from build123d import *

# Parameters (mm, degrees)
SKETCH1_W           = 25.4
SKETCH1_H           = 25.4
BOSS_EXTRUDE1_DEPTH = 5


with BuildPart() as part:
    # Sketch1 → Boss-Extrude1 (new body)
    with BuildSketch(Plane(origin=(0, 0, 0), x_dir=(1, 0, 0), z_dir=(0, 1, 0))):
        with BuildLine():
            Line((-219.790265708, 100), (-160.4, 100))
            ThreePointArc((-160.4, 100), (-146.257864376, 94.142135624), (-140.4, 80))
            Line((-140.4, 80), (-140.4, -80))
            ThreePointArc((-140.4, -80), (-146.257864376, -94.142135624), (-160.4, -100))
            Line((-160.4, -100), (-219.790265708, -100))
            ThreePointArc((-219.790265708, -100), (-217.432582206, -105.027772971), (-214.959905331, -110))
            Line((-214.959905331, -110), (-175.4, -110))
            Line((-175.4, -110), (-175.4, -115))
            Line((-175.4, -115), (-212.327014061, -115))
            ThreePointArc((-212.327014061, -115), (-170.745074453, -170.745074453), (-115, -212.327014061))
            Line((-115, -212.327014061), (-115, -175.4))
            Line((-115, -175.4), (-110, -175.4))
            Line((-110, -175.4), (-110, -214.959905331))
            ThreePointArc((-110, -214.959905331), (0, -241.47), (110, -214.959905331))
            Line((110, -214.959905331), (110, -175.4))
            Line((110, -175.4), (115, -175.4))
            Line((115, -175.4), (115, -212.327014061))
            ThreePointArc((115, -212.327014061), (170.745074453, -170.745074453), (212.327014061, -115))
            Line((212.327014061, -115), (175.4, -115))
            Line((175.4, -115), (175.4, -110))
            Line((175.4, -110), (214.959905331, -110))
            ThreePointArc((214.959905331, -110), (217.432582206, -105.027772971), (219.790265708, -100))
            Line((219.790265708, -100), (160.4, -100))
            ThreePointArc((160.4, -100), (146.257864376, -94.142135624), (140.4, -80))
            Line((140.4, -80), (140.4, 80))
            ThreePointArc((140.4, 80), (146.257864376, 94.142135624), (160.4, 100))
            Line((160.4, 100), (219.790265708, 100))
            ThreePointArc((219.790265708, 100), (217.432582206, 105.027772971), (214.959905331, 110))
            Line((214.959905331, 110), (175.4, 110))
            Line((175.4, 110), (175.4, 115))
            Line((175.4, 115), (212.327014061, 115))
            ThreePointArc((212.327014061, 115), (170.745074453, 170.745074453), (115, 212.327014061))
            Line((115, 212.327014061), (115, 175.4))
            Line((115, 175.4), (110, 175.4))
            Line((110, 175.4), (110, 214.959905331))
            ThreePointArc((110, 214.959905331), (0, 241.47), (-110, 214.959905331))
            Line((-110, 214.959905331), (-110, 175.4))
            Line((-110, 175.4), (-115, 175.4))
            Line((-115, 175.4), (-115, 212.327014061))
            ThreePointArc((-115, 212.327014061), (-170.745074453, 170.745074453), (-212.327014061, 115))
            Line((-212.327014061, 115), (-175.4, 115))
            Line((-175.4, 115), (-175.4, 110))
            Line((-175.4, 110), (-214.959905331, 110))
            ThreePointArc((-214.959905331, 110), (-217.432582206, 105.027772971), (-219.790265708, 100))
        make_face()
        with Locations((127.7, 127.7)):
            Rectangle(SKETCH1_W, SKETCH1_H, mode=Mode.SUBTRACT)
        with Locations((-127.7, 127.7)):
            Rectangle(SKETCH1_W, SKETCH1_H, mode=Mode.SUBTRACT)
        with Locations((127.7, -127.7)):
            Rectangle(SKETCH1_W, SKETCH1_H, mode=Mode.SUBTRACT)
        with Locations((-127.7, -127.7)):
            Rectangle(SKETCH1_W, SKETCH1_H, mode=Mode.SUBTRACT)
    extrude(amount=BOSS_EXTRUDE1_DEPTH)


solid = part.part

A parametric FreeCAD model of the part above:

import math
import FreeCAD as App
import Part
import Sketcher

V = App.Vector


def add_polygon(sketch, points):
    """Adds a closed chain of lines whose ends are joined by coincident constraints."""
    first, n = sketch.GeometryCount, len(points)
    for a, b in zip(points, points[1:] + points[:1]):
        sketch.addGeometry(Part.LineSegment(App.Vector(*a, 0), App.Vector(*b, 0)), False)
    for i in range(n):
        sketch.addConstraint(Sketcher.Constraint("Coincident", first + i, 2, first + (i + 1) % n, 1))

doc = App.newDocument("Part")
body = doc.addObject("PartDesign::Body", "Body")

# Sketch on XZ plane
sketch1 = doc.addObject("Sketcher::SketchObject", "Sketch")
body.addObject(sketch1)
sketch1.AttachmentSupport = (doc.XZ_Plane, [""])
sketch1.MapMode = "FlatFace"
sketch1.addGeometry(Part.LineSegment(V(-220, -100, 0), V(-160, -100, 0)), False)  # 0
sketch1.addGeometry(Part.ArcOfCircle(Part.Circle(V(-160, -80, 0), V(0, 0, 1), 20), math.radians(-90), math.radians(0)), False)  # 1
sketch1.addGeometry(Part.LineSegment(V(-140, -80, 0), V(-140, 80, 0)), False)  # 2
sketch1.addGeometry(Part.ArcOfCircle(Part.Circle(V(-160, 80, 0), V(0, 0, 1), 20), math.radians(0), math.radians(90)), False)  # 3
sketch1.addGeometry(Part.LineSegment(V(-160, 100, 0), V(-220, 100, 0)), False)  # 4
sketch1.addGeometry(Part.ArcOfCircle(Part.Circle(V(0, 0, 0), V(0, 0, 1), 241), math.radians(152.9), math.radians(155.54)), False)  # 5
sketch1.addGeometry(Part.LineSegment(V(-215, 110, 0), V(-175, 110, 0)), False)  # 6
sketch1.addGeometry(Part.LineSegment(V(-175, 110, 0), V(-175, 115, 0)), False)  # 7
sketch1.addGeometry(Part.LineSegment(V(-175, 115, 0), V(-212, 115, 0)), False)  # 8
sketch1.addGeometry(Part.ArcOfCircle(Part.Circle(V(0, 0, 0), V(0, 0, 1), 241), math.radians(118), math.radians(152)), False)  # 9
sketch1.addGeometry(Part.LineSegment(V(-115, 212, 0), V(-115, 175, 0)), False)  # 10
sketch1.addGeometry(Part.LineSegment(V(-115, 175, 0), V(-110, 175, 0)), False)  # 11
sketch1.addGeometry(Part.LineSegment(V(-110, 175, 0), V(-110, 215, 0)), False)  # 12
sketch1.addGeometry(Part.ArcOfCircle(Part.Circle(V(0, 0, 0), V(0, 0, 1), 241), math.radians(63), math.radians(117)), False)  # 13
sketch1.addGeometry(Part.LineSegment(V(110, 215, 0), V(110, 175, 0)), False)  # 14
sketch1.addGeometry(Part.LineSegment(V(110, 175, 0), V(115, 175, 0)), False)  # 15
sketch1.addGeometry(Part.LineSegment(V(115, 175, 0), V(115, 212, 0)), False)  # 16
sketch1.addGeometry(Part.ArcOfCircle(Part.Circle(V(0, 0, 0), V(0, 0, 1), 241), math.radians(28), math.radians(62)), False)  # 17
sketch1.addGeometry(Part.LineSegment(V(212, 115, 0), V(175, 115, 0)), False)  # 18
sketch1.addGeometry(Part.LineSegment(V(175, 115, 0), V(175, 110, 0)), False)  # 19
sketch1.addGeometry(Part.LineSegment(V(175, 110, 0), V(215, 110, 0)), False)  # 20
sketch1.addGeometry(Part.ArcOfCircle(Part.Circle(V(0, 0, 0), V(0, 0, 1), 241), math.radians(24.46), math.radians(27.1)), False)  # 21
sketch1.addGeometry(Part.LineSegment(V(220, 100, 0), V(160, 100, 0)), False)  # 22
sketch1.addGeometry(Part.ArcOfCircle(Part.Circle(V(160, 80, 0), V(0, 0, 1), 20), math.radians(90), math.radians(180)), False)  # 23
sketch1.addGeometry(Part.LineSegment(V(140, 80, 0), V(140, -80, 0)), False)  # 24
sketch1.addGeometry(Part.ArcOfCircle(Part.Circle(V(160, -80, 0), V(0, 0, 1), 20), math.radians(180), math.radians(270)), False)  # 25
sketch1.addGeometry(Part.LineSegment(V(160, -100, 0), V(220, -100, 0)), False)  # 26
sketch1.addGeometry(Part.ArcOfCircle(Part.Circle(V(0, 0, 0), V(0, 0, 1), 241), math.radians(-27.1), math.radians(-24.46)), False)  # 27
sketch1.addGeometry(Part.LineSegment(V(215, -110, 0), V(175, -110, 0)), False)  # 28
sketch1.addGeometry(Part.LineSegment(V(175, -110, 0), V(175, -115, 0)), False)  # 29
sketch1.addGeometry(Part.LineSegment(V(175, -115, 0), V(212, -115, 0)), False)  # 30
sketch1.addGeometry(Part.ArcOfCircle(Part.Circle(V(0, 0, 0), V(0, 0, 1), 241), math.radians(-62), math.radians(-28)), False)  # 31
sketch1.addGeometry(Part.LineSegment(V(115, -212, 0), V(115, -175, 0)), False)  # 32
sketch1.addGeometry(Part.LineSegment(V(115, -175, 0), V(110, -175, 0)), False)  # 33
sketch1.addGeometry(Part.LineSegment(V(110, -175, 0), V(110, -215, 0)), False)  # 34
sketch1.addGeometry(Part.ArcOfCircle(Part.Circle(V(0, 0, 0), V(0, 0, 1), 241), math.radians(-117), math.radians(-63)), False)  # 35
sketch1.addGeometry(Part.LineSegment(V(-110, -215, 0), V(-110, -175, 0)), False)  # 36
sketch1.addGeometry(Part.LineSegment(V(-110, -175, 0), V(-115, -175, 0)), False)  # 37
sketch1.addGeometry(Part.LineSegment(V(-115, -175, 0), V(-115, -212, 0)), False)  # 38
sketch1.addGeometry(Part.ArcOfCircle(Part.Circle(V(0, 0, 0), V(0, 0, 1), 241), math.radians(-152), math.radians(-118)), False)  # 39
sketch1.addGeometry(Part.LineSegment(V(-212, -115, 0), V(-175, -115, 0)), False)  # 40
sketch1.addGeometry(Part.LineSegment(V(-175, -115, 0), V(-175, -110, 0)), False)  # 41
sketch1.addGeometry(Part.LineSegment(V(-175, -110, 0), V(-215, -110, 0)), False)  # 42
sketch1.addGeometry(Part.ArcOfCircle(Part.Circle(V(0, 0, 0), V(0, 0, 1), 241), math.radians(-155.54), math.radians(-152.9)), False)  # 43
add_polygon(sketch1, [(-115, 140), (-140, 140), (-140, 115), (-115, 115)])  # lines 44-47
add_polygon(sketch1, [(140, 140), (115, 140), (115, 115), (140, 115)])  # lines 48-51
add_polygon(sketch1, [(-115, -115), (-140, -115), (-140, -140), (-115, -140)])  # lines 52-55
add_polygon(sketch1, [(140, -115), (115, -115), (115, -140), (140, -140)])  # lines 56-59
sketch1.addConstraint(Sketcher.Constraint("Tangent", 0, 2, 1, 1))
sketch1.addConstraint(Sketcher.Constraint("Tangent", 1, 2, 2, 1))
sketch1.addConstraint(Sketcher.Constraint("Tangent", 2, 2, 3, 1))
sketch1.addConstraint(Sketcher.Constraint("Tangent", 3, 2, 4, 1))
sketch1.addConstraint(Sketcher.Constraint("Coincident", 4, 2, 5, 2))
sketch1.addConstraint(Sketcher.Constraint("Coincident", 5, 1, 6, 1))
sketch1.addConstraint(Sketcher.Constraint("Coincident", 6, 2, 7, 1))
sketch1.addConstraint(Sketcher.Constraint("Coincident", 7, 2, 8, 1))
sketch1.addConstraint(Sketcher.Constraint("Coincident", 8, 2, 9, 2))
sketch1.addConstraint(Sketcher.Constraint("Coincident", 9, 1, 10, 1))
sketch1.addConstraint(Sketcher.Constraint("Coincident", 10, 2, 11, 1))
sketch1.addConstraint(Sketcher.Constraint("Coincident", 11, 2, 12, 1))
sketch1.addConstraint(Sketcher.Constraint("Coincident", 12, 2, 13, 2))
sketch1.addConstraint(Sketcher.Constraint("Coincident", 13, 1, 14, 1))
sketch1.addConstraint(Sketcher.Constraint("Coincident", 14, 2, 15, 1))
sketch1.addConstraint(Sketcher.Constraint("Coincident", 15, 2, 16, 1))
sketch1.addConstraint(Sketcher.Constraint("Coincident", 16, 2, 17, 2))
sketch1.addConstraint(Sketcher.Constraint("Coincident", 17, 1, 18, 1))
sketch1.addConstraint(Sketcher.Constraint("Coincident", 18, 2, 19, 1))
sketch1.addConstraint(Sketcher.Constraint("Coincident", 19, 2, 20, 1))
sketch1.addConstraint(Sketcher.Constraint("Coincident", 20, 2, 21, 2))
sketch1.addConstraint(Sketcher.Constraint("Coincident", 21, 1, 22, 1))
sketch1.addConstraint(Sketcher.Constraint("Tangent", 22, 2, 23, 1))
sketch1.addConstraint(Sketcher.Constraint("Tangent", 23, 2, 24, 1))
sketch1.addConstraint(Sketcher.Constraint("Tangent", 24, 2, 25, 1))
sketch1.addConstraint(Sketcher.Constraint("Tangent", 25, 2, 26, 1))
sketch1.addConstraint(Sketcher.Constraint("Coincident", 26, 2, 27, 2))
sketch1.addConstraint(Sketcher.Constraint("Coincident", 27, 1, 28, 1))
sketch1.addConstraint(Sketcher.Constraint("Coincident", 28, 2, 29, 1))
sketch1.addConstraint(Sketcher.Constraint("Coincident", 29, 2, 30, 1))
sketch1.addConstraint(Sketcher.Constraint("Coincident", 30, 2, 31, 2))
sketch1.addConstraint(Sketcher.Constraint("Coincident", 31, 1, 32, 1))
sketch1.addConstraint(Sketcher.Constraint("Coincident", 32, 2, 33, 1))
sketch1.addConstraint(Sketcher.Constraint("Coincident", 33, 2, 34, 1))
sketch1.addConstraint(Sketcher.Constraint("Coincident", 34, 2, 35, 2))
sketch1.addConstraint(Sketcher.Constraint("Coincident", 35, 1, 36, 1))
sketch1.addConstraint(Sketcher.Constraint("Coincident", 36, 2, 37, 1))
sketch1.addConstraint(Sketcher.Constraint("Coincident", 37, 2, 38, 1))
sketch1.addConstraint(Sketcher.Constraint("Coincident", 38, 2, 39, 2))
sketch1.addConstraint(Sketcher.Constraint("Coincident", 39, 1, 40, 1))
sketch1.addConstraint(Sketcher.Constraint("Coincident", 40, 2, 41, 1))
sketch1.addConstraint(Sketcher.Constraint("Coincident", 41, 2, 42, 1))
sketch1.addConstraint(Sketcher.Constraint("Coincident", 42, 2, 43, 2))
sketch1.addConstraint(Sketcher.Constraint("Coincident", 43, 1, 0, 1))
sketch1.addConstraint(Sketcher.Constraint("Horizontal", 0))
sketch1.addConstraint(Sketcher.Constraint("Vertical", 2))
sketch1.addConstraint(Sketcher.Constraint("Horizontal", 4))
sketch1.addConstraint(Sketcher.Constraint("Horizontal", 6))
sketch1.addConstraint(Sketcher.Constraint("Vertical", 7))
sketch1.addConstraint(Sketcher.Constraint("Horizontal", 8))
sketch1.addConstraint(Sketcher.Constraint("Vertical", 10))
sketch1.addConstraint(Sketcher.Constraint("Horizontal", 11))
sketch1.addConstraint(Sketcher.Constraint("Vertical", 12))
sketch1.addConstraint(Sketcher.Constraint("Vertical", 14))
sketch1.addConstraint(Sketcher.Constraint("Horizontal", 15))
sketch1.addConstraint(Sketcher.Constraint("Vertical", 16))
sketch1.addConstraint(Sketcher.Constraint("Horizontal", 18))
sketch1.addConstraint(Sketcher.Constraint("Vertical", 19))
sketch1.addConstraint(Sketcher.Constraint("Horizontal", 20))
sketch1.addConstraint(Sketcher.Constraint("Horizontal", 22))
sketch1.addConstraint(Sketcher.Constraint("Vertical", 24))
sketch1.addConstraint(Sketcher.Constraint("Horizontal", 26))
sketch1.addConstraint(Sketcher.Constraint("Horizontal", 28))
sketch1.addConstraint(Sketcher.Constraint("Vertical", 29))
sketch1.addConstraint(Sketcher.Constraint("Horizontal", 30))
sketch1.addConstraint(Sketcher.Constraint("Vertical", 32))
sketch1.addConstraint(Sketcher.Constraint("Horizontal", 33))
sketch1.addConstraint(Sketcher.Constraint("Vertical", 34))
sketch1.addConstraint(Sketcher.Constraint("Vertical", 36))
sketch1.addConstraint(Sketcher.Constraint("Horizontal", 37))
sketch1.addConstraint(Sketcher.Constraint("Vertical", 38))
sketch1.addConstraint(Sketcher.Constraint("Horizontal", 40))
sketch1.addConstraint(Sketcher.Constraint("Vertical", 41))
sketch1.addConstraint(Sketcher.Constraint("Horizontal", 42))
sketch1.addConstraint(Sketcher.Constraint("Horizontal", 44))
sketch1.addConstraint(Sketcher.Constraint("Vertical", 45))
sketch1.addConstraint(Sketcher.Constraint("Horizontal", 46))
sketch1.addConstraint(Sketcher.Constraint("Vertical", 47))
sketch1.addConstraint(Sketcher.Constraint("Horizontal", 48))
sketch1.addConstraint(Sketcher.Constraint("Vertical", 49))
sketch1.addConstraint(Sketcher.Constraint("Horizontal", 50))
sketch1.addConstraint(Sketcher.Constraint("Vertical", 51))
sketch1.addConstraint(Sketcher.Constraint("Horizontal", 52))
sketch1.addConstraint(Sketcher.Constraint("Vertical", 53))
sketch1.addConstraint(Sketcher.Constraint("Horizontal", 54))
sketch1.addConstraint(Sketcher.Constraint("Vertical", 55))
sketch1.addConstraint(Sketcher.Constraint("Horizontal", 56))
sketch1.addConstraint(Sketcher.Constraint("Vertical", 57))
sketch1.addConstraint(Sketcher.Constraint("Horizontal", 58))
sketch1.addConstraint(Sketcher.Constraint("Vertical", 59))
sketch1.addConstraint(Sketcher.Constraint("Coincident", 5, 3, -1, 1))
sketch1.addConstraint(Sketcher.Constraint("Coincident", 9, 3, -1, 1))
sketch1.addConstraint(Sketcher.Constraint("Coincident", 13, 3, -1, 1))
sketch1.addConstraint(Sketcher.Constraint("Coincident", 17, 3, -1, 1))
sketch1.addConstraint(Sketcher.Constraint("Coincident", 21, 3, -1, 1))
sketch1.addConstraint(Sketcher.Constraint("Coincident", 27, 3, -1, 1))
sketch1.addConstraint(Sketcher.Constraint("Coincident", 31, 3, -1, 1))
sketch1.addConstraint(Sketcher.Constraint("Coincident", 35, 3, -1, 1))
sketch1.addConstraint(Sketcher.Constraint("Coincident", 39, 3, -1, 1))
sketch1.addConstraint(Sketcher.Constraint("Coincident", 43, 3, -1, 1))
sketch1.addConstraint(Sketcher.Constraint("Equal", 1, 3))
sketch1.addConstraint(Sketcher.Constraint("Equal", 5, 9))
sketch1.addConstraint(Sketcher.Constraint("Equal", 9, 13))
sketch1.addConstraint(Sketcher.Constraint("Equal", 13, 17))
sketch1.addConstraint(Sketcher.Constraint("Equal", 17, 21))
sketch1.addConstraint(Sketcher.Constraint("Equal", 3, 23))
sketch1.addConstraint(Sketcher.Constraint("Equal", 23, 25))
sketch1.addConstraint(Sketcher.Constraint("Equal", 21, 27))
sketch1.addConstraint(Sketcher.Constraint("Equal", 27, 31))
sketch1.addConstraint(Sketcher.Constraint("Equal", 31, 35))
sketch1.addConstraint(Sketcher.Constraint("Equal", 35, 39))
sketch1.addConstraint(Sketcher.Constraint("Equal", 39, 43))
sketch1.addConstraint(Sketcher.Constraint("Symmetric", 1, 3, 23, 3, -1, 1))
sketch1.addConstraint(Sketcher.Constraint("Symmetric", 6, 2, 28, 2, -1, 1))
sketch1.addConstraint(Sketcher.Constraint("Symmetric", 10, 2, 32, 2, -1, 1))
sketch1.addConstraint(Sketcher.Constraint("Symmetric", 14, 2, 36, 2, -1, 1))
sketch1.addConstraint(Sketcher.Constraint("Symmetric", 18, 2, 40, 2, -1, 1))
sketch1.addConstraint(Sketcher.Constraint("Symmetric", 50, 2, 52, 2, -1, 1))
sketch1.addConstraint(Sketcher.Constraint("Symmetric", 48, 2, 54, 2, -1, 1))
sketch1.addConstraint(Sketcher.Constraint("Symmetric", 46, 2, 56, 2, -1, 1))
sketch1.addConstraint(Sketcher.Constraint("Symmetric", 44, 2, 58, 2, -1, 1))
sketch1.addConstraint(Sketcher.Constraint("Symmetric", 11, 2, 14, 2, -2))
sketch1.addConstraint(Sketcher.Constraint("Symmetric", 7, 2, 18, 2, -2))
sketch1.addConstraint(Sketcher.Constraint("Symmetric", 47, 2, 48, 2, -2))
sketch1.addConstraint(Sketcher.Constraint("Symmetric", 45, 2, 50, 2, -2))
sketch1.addConstraint(Sketcher.Constraint("Horizontal", 3, 3, 23, 3))
sketch1.addConstraint(Sketcher.Constraint("Horizontal", 1, 3, 25, 3))
sketch1.addConstraint(Sketcher.Constraint("Horizontal", 9, 1, 16, 2))
sketch1.addConstraint(Sketcher.Constraint("Horizontal", 6, 2, 19, 2))
sketch1.addConstraint(Sketcher.Constraint("Horizontal", 34, 2, 35, 1))
sketch1.addConstraint(Sketcher.Constraint("Horizontal", 31, 1, 38, 2))
sketch1.addConstraint(Sketcher.Constraint("Horizontal", 30, 2, 39, 1))
sketch1.addConstraint(Sketcher.Constraint("Horizontal", 28, 2, 41, 2))
sketch1.addConstraint(Sketcher.Constraint("Horizontal", 18, 2, 45, 2))
sketch1.addConstraint(Sketcher.Constraint("Vertical", 2, 2, 44, 2))
sketch1.addConstraint(Sketcher.Constraint("Vertical", 38, 2, 46, 2))
sketch1.addConstraint(Sketcher.Constraint("Equal", 37, 7))
sketch1.addConstraint(Sketcher.Constraint("Equal", 40, 10))
sketch1.addConstraint(Sketcher.Constraint("Equal", 42, 12))
sketch1.addConstraint(Sketcher.Constraint("Equal", 58, 45))
sketch1.addConstraint(Sketcher.Constraint("Radius", 1, 20.0))
sketch1.addConstraint(Sketcher.Constraint("DistanceX", 11, 1, 11, 2, 5.0))
sketch1.addConstraint(Sketcher.Constraint("DistanceY", 2, 1, 2, 2, 160.0))
sketch1.addConstraint(Sketcher.Constraint("Radius", 5, 241.469999))
sketch1.addConstraint(Sketcher.Constraint("DistanceX", 44, 2, 44, 1, 25.4))
sketch1.addConstraint(Sketcher.Constraint("DistanceY", -1, 1, 6, 2, 110.0))
sketch1.addConstraint(Sketcher.Constraint("DistanceX", 6, 2, -1, 1, 175.4))
pad1 = doc.addObject("PartDesign::Pad", "Pad")
body.addObject(pad1)
pad1.Profile = sketch1
pad1.Length = 5
pad1.Reversed = True

doc.recompute()
